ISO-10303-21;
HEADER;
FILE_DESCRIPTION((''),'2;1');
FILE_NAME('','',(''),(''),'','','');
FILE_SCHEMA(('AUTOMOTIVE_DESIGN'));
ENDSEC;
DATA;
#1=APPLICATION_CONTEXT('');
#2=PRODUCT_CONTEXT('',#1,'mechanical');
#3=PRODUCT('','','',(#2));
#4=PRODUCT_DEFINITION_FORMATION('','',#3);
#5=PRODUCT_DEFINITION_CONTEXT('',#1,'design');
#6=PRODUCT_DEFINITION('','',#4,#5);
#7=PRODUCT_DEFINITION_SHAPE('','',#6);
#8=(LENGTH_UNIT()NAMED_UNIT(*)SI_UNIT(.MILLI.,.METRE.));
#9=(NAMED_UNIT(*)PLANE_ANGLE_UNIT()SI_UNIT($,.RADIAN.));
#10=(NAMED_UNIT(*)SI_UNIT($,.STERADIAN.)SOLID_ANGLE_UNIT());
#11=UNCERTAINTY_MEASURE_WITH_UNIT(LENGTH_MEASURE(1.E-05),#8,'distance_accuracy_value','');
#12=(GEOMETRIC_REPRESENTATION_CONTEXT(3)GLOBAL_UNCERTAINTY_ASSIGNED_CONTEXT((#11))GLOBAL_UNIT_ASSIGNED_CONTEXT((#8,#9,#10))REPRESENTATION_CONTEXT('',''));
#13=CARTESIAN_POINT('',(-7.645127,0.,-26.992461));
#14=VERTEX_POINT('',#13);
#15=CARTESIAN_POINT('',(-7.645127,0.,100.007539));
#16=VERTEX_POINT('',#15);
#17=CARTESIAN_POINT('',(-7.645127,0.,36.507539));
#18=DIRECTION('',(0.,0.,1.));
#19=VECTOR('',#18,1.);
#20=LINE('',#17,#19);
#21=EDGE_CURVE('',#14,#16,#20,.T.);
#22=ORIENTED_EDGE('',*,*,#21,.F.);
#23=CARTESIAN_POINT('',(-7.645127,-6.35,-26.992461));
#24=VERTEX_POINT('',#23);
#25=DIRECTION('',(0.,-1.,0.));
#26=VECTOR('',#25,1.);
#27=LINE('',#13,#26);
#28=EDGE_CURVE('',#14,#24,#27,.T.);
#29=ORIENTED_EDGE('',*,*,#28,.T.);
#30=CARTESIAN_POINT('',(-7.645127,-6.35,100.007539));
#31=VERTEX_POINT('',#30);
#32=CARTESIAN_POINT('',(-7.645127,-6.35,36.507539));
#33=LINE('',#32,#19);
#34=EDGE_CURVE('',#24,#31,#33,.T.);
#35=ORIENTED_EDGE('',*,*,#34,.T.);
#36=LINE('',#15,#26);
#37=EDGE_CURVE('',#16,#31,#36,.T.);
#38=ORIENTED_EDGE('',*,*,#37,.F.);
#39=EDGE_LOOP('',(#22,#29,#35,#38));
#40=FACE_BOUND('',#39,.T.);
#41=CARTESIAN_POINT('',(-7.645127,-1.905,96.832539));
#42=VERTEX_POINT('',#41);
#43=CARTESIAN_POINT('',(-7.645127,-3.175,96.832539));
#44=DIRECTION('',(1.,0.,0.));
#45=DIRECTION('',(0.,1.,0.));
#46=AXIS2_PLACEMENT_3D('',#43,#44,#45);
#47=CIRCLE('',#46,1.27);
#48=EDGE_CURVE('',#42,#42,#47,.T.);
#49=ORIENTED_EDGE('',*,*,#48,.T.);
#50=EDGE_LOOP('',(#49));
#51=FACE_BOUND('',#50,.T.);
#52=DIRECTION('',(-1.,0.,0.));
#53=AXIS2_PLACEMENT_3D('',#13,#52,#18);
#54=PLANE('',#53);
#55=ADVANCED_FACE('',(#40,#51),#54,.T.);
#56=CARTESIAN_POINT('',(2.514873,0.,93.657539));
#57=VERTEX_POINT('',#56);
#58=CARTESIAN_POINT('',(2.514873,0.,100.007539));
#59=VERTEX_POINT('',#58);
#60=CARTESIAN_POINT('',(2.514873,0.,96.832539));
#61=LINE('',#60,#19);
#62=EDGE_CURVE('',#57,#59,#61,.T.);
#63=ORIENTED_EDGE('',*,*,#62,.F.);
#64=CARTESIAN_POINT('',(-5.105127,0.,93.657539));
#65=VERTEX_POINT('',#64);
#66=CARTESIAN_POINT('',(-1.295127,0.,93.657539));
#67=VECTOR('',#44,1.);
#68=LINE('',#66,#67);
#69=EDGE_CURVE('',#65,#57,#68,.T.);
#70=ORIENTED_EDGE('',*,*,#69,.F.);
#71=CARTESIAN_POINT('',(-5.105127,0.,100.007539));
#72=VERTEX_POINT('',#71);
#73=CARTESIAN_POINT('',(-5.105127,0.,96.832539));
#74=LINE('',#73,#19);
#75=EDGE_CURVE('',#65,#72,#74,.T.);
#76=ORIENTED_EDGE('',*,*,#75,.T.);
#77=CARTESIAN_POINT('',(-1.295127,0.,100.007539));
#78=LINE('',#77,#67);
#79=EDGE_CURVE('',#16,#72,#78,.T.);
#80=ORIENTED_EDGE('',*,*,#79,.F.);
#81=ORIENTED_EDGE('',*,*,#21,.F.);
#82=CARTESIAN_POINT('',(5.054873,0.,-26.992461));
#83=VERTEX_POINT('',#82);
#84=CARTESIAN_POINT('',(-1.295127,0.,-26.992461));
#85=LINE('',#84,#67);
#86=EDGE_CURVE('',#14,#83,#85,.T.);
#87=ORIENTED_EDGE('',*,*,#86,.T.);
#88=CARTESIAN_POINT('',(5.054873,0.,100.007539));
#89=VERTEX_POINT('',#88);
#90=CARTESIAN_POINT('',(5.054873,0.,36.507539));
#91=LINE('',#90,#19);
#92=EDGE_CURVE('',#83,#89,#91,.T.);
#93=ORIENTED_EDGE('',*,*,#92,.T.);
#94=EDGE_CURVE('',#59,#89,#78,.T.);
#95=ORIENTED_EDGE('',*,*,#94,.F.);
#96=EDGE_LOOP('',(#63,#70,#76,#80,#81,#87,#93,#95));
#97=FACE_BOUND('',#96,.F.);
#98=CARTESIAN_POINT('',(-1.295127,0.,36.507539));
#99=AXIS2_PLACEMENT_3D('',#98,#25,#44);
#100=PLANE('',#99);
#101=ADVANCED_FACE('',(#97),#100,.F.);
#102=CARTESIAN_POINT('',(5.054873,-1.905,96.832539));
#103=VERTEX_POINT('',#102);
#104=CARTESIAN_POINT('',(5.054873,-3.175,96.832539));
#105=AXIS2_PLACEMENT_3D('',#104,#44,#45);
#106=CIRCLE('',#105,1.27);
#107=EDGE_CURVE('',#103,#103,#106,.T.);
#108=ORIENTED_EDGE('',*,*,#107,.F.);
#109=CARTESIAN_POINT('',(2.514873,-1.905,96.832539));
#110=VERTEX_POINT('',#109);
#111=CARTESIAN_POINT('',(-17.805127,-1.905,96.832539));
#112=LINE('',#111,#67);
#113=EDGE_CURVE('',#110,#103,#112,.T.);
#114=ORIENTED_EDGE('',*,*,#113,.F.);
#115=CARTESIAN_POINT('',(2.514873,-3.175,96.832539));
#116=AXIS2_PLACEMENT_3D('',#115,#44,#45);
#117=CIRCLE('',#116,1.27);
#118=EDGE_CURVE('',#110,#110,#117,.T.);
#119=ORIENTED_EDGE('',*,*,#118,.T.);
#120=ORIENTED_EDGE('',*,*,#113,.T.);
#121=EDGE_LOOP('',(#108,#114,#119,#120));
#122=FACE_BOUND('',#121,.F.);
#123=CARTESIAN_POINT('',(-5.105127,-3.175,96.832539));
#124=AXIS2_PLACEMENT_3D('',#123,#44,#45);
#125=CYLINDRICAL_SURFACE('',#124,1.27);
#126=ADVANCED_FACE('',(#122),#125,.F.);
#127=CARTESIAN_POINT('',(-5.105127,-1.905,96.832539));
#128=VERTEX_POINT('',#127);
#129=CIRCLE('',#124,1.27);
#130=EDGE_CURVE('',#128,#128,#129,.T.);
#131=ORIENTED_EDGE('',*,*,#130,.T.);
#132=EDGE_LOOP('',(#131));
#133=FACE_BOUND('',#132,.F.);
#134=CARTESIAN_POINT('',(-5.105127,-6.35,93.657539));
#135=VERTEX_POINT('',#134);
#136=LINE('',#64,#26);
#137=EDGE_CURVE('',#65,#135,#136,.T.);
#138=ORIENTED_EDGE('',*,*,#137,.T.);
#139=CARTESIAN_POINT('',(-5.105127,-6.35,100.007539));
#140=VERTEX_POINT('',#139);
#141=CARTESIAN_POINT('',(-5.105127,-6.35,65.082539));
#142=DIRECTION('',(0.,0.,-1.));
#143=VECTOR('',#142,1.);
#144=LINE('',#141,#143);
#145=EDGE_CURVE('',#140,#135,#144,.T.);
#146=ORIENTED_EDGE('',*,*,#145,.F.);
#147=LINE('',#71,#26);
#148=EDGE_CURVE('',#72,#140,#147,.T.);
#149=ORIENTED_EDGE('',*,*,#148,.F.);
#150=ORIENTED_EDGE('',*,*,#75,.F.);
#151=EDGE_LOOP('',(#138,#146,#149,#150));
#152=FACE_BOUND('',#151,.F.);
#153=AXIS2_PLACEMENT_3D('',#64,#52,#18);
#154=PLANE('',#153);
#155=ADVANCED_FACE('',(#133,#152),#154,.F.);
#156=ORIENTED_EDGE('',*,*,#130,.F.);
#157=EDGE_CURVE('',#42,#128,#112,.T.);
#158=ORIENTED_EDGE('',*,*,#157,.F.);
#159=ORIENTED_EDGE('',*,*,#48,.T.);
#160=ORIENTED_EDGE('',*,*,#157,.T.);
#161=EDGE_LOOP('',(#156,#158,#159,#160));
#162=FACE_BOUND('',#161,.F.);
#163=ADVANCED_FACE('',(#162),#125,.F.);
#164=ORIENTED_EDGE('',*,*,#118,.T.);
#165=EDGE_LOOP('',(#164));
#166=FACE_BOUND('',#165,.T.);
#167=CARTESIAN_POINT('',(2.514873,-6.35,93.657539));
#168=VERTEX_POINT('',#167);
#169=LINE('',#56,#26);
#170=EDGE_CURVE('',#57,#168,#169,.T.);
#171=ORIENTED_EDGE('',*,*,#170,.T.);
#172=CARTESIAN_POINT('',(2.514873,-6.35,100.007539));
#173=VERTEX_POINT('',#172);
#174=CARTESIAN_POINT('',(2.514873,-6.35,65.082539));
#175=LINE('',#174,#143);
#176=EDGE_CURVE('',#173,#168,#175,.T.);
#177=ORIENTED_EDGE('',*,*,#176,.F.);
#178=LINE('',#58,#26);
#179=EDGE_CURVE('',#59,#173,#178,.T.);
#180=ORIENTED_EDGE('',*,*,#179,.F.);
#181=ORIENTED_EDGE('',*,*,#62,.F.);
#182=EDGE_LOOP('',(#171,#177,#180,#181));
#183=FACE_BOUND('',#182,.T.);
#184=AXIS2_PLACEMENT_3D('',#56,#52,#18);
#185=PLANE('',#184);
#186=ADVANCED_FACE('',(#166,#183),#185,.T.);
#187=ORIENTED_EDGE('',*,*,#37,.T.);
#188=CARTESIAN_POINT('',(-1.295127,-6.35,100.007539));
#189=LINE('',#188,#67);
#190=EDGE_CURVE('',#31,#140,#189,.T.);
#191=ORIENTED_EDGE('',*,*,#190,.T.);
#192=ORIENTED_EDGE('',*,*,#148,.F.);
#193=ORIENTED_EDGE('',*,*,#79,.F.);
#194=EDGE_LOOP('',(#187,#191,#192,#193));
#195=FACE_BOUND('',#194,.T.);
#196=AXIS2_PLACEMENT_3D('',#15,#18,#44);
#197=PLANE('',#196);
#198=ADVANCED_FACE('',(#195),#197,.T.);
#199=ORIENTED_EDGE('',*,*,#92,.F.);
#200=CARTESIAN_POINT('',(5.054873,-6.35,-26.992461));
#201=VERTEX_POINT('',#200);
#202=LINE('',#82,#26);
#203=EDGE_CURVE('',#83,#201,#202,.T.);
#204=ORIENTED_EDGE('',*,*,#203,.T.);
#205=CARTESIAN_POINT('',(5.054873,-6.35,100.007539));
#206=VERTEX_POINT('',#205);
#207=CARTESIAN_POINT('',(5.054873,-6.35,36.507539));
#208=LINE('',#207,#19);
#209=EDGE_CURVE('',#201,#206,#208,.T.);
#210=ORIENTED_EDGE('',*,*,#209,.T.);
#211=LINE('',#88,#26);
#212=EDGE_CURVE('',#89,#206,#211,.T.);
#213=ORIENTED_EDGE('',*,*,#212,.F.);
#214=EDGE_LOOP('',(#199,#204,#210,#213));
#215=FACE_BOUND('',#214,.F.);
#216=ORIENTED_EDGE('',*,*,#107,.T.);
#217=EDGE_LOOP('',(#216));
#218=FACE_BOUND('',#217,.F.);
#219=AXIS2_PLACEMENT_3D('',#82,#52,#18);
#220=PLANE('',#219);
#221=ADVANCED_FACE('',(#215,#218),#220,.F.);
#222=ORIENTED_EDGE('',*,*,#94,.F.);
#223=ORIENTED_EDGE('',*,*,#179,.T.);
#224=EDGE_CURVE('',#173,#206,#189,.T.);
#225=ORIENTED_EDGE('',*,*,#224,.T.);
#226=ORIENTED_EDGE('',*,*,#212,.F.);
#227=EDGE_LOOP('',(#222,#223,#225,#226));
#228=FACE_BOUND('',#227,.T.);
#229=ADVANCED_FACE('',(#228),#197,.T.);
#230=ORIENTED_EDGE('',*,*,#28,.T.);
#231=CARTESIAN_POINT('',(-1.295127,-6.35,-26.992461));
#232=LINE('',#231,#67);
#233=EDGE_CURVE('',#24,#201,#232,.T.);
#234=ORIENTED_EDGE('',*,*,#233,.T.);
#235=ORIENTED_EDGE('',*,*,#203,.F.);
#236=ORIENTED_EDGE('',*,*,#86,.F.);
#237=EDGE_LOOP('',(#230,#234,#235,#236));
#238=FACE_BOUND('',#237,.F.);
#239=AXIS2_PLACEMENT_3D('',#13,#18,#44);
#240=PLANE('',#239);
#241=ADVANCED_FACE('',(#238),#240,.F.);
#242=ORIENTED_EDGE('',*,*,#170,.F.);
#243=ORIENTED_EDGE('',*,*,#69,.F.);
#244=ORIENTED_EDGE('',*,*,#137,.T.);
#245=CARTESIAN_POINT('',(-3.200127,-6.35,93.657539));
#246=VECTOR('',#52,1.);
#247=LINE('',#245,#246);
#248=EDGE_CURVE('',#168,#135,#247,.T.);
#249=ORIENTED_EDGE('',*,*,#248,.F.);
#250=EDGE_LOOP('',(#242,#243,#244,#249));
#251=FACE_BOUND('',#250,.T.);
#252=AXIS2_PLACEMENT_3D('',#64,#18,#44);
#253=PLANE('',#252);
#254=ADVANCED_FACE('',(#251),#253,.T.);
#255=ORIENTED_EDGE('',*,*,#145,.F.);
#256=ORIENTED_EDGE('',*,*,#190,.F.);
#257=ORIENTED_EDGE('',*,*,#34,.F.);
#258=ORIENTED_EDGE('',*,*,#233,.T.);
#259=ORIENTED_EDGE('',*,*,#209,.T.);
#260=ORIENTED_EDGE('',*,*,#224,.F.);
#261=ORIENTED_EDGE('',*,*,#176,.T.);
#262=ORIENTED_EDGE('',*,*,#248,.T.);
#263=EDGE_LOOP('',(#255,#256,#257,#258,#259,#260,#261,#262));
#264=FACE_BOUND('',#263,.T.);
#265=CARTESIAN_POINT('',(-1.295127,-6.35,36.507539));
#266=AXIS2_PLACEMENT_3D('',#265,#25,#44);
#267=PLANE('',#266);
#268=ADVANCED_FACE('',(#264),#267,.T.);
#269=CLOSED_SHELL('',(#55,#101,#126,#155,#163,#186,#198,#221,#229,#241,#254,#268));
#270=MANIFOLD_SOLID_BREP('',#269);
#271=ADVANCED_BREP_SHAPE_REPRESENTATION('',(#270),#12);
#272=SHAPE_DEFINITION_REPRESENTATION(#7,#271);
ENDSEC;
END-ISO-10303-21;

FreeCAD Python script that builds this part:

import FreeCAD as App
import Part
import Sketcher

V = App.Vector
Q = App.Units.Quantity

doc = App.newDocument("Part")
body = doc.addObject("PartDesign::Body", "Body")

# Sketch on XZ plane
sketch1 = body.newObject("Sketcher::SketchObject", "Sketch")
sketch1.AttachmentSupport = (doc.getObject("XZ_Plane"), [""])
sketch1.MapMode = "FlatFace"
sketch1.addGeometry([
    Part.LineSegment(V(-8, 100, 0), V(-8, -27, 0)),
    Part.LineSegment(V(-8, -27, 0), V(5, -27, 0)),
    Part.LineSegment(V(5, -27, 0), V(5, 100, 0)),
    Part.LineSegment(V(5, 100, 0), V(-8, 100, 0)),
], False)
sketch1.addConstraint([
    Sketcher.Constraint("Coincident", 0, 2, 1, 1),
    Sketcher.Constraint("Coincident", 1, 2, 2, 1),
    Sketcher.Constraint("Coincident", 2, 2, 3, 1),
    Sketcher.Constraint("Coincident", 3, 2, 0, 1),
    Sketcher.Constraint("Vertical", 0),
    Sketcher.Constraint("Horizontal", 1),
    Sketcher.Constraint("Vertical", 2),
    Sketcher.Constraint("Horizontal", 3),
    Sketcher.Constraint("DistanceY", 0, 2, 0, 1, Q("5 in")),
    Sketcher.Constraint("DistanceX", 1, 1, 1, 2, Q("0.5 in")),
    Sketcher.Constraint("DistanceY", 0, 2, -1, 1, 26.992461),
    Sketcher.Constraint("DistanceX", 0, 2, -1, 1, 7.645127),
])
pad1 = body.newObject("PartDesign::Pad", "Pad")
pad1.Profile = sketch1
pad1.Length = Q("0.25 in")

# Sketch on XZ plane
sketch2 = body.newObject("Sketcher::SketchObject", "Sketch001")
sketch2.AttachmentSupport = (doc.getObject("XZ_Plane"), [""])
sketch2.MapMode = "FlatFace"
sketch2.addGeometry([
    Part.LineSegment(V(-5, 100, 0), V(-5, 94, 0)),
    Part.LineSegment(V(-5, 94, 0), V(3, 94, 0)),
    Part.LineSegment(V(3, 94, 0), V(3, 100, 0)),
    Part.LineSegment(V(3, 100, 0), V(-5, 100, 0)),
], False)
sketch2.addConstraint([
    Sketcher.Constraint("Coincident", 0, 2, 1, 1),
    Sketcher.Constraint("Coincident", 1, 2, 2, 1),
    Sketcher.Constraint("Coincident", 2, 2, 3, 1),
    Sketcher.Constraint("Coincident", 3, 2, 0, 1),
    Sketcher.Constraint("Vertical", 0),
    Sketcher.Constraint("Horizontal", 1),
    Sketcher.Constraint("Vertical", 2),
    Sketcher.Constraint("Horizontal", 3),
    Sketcher.Constraint("DistanceX", 1, 1, 1, 2, Q("0.3 in")),
    Sketcher.Constraint("DistanceY", 0, 2, 0, 1, Q("0.25 in")),
    Sketcher.Constraint("DistanceY", -1, 1, 0, 2, 93.657539),
    Sketcher.Constraint("DistanceX", 0, 2, -1, 1, 5.105127),
])
pocket1 = body.newObject("PartDesign::Pocket", "Pocket")
pocket1.Profile = sketch2
pocket1.Type = "ThroughAll"
pocket1.Reversed = True

# Sketch on YZ plane
sketch3 = body.newObject("Sketcher::SketchObject", "Sketch002")
sketch3.AttachmentSupport = (doc.getObject("YZ_Plane"), [""])
sketch3.MapMode = "FlatFace"
sketch3.AttachmentOffset = App.Placement(V(0, 0, -5.105127), App.Rotation())
sketch3.addGeometry(Part.Circle(V(-3.2, 96.8, 0), V(0, 0, 1), 1.3), False)
sketch3.addConstraint([
    Sketcher.Constraint("Diameter", 0, Q("0.1 in")),
    Sketcher.Constraint("DistanceX", 0, 3, -1, 1, Q("0.125 in")),
    Sketcher.Constraint("DistanceY", -1, 1, 0, 3, 96.832539),
])
pocket2 = body.newObject("PartDesign::Pocket", "Pocket001")
pocket2.Profile = sketch3
pocket2.Length = Q("1 in")
pocket2.Midplane = True

doc.recompute()
